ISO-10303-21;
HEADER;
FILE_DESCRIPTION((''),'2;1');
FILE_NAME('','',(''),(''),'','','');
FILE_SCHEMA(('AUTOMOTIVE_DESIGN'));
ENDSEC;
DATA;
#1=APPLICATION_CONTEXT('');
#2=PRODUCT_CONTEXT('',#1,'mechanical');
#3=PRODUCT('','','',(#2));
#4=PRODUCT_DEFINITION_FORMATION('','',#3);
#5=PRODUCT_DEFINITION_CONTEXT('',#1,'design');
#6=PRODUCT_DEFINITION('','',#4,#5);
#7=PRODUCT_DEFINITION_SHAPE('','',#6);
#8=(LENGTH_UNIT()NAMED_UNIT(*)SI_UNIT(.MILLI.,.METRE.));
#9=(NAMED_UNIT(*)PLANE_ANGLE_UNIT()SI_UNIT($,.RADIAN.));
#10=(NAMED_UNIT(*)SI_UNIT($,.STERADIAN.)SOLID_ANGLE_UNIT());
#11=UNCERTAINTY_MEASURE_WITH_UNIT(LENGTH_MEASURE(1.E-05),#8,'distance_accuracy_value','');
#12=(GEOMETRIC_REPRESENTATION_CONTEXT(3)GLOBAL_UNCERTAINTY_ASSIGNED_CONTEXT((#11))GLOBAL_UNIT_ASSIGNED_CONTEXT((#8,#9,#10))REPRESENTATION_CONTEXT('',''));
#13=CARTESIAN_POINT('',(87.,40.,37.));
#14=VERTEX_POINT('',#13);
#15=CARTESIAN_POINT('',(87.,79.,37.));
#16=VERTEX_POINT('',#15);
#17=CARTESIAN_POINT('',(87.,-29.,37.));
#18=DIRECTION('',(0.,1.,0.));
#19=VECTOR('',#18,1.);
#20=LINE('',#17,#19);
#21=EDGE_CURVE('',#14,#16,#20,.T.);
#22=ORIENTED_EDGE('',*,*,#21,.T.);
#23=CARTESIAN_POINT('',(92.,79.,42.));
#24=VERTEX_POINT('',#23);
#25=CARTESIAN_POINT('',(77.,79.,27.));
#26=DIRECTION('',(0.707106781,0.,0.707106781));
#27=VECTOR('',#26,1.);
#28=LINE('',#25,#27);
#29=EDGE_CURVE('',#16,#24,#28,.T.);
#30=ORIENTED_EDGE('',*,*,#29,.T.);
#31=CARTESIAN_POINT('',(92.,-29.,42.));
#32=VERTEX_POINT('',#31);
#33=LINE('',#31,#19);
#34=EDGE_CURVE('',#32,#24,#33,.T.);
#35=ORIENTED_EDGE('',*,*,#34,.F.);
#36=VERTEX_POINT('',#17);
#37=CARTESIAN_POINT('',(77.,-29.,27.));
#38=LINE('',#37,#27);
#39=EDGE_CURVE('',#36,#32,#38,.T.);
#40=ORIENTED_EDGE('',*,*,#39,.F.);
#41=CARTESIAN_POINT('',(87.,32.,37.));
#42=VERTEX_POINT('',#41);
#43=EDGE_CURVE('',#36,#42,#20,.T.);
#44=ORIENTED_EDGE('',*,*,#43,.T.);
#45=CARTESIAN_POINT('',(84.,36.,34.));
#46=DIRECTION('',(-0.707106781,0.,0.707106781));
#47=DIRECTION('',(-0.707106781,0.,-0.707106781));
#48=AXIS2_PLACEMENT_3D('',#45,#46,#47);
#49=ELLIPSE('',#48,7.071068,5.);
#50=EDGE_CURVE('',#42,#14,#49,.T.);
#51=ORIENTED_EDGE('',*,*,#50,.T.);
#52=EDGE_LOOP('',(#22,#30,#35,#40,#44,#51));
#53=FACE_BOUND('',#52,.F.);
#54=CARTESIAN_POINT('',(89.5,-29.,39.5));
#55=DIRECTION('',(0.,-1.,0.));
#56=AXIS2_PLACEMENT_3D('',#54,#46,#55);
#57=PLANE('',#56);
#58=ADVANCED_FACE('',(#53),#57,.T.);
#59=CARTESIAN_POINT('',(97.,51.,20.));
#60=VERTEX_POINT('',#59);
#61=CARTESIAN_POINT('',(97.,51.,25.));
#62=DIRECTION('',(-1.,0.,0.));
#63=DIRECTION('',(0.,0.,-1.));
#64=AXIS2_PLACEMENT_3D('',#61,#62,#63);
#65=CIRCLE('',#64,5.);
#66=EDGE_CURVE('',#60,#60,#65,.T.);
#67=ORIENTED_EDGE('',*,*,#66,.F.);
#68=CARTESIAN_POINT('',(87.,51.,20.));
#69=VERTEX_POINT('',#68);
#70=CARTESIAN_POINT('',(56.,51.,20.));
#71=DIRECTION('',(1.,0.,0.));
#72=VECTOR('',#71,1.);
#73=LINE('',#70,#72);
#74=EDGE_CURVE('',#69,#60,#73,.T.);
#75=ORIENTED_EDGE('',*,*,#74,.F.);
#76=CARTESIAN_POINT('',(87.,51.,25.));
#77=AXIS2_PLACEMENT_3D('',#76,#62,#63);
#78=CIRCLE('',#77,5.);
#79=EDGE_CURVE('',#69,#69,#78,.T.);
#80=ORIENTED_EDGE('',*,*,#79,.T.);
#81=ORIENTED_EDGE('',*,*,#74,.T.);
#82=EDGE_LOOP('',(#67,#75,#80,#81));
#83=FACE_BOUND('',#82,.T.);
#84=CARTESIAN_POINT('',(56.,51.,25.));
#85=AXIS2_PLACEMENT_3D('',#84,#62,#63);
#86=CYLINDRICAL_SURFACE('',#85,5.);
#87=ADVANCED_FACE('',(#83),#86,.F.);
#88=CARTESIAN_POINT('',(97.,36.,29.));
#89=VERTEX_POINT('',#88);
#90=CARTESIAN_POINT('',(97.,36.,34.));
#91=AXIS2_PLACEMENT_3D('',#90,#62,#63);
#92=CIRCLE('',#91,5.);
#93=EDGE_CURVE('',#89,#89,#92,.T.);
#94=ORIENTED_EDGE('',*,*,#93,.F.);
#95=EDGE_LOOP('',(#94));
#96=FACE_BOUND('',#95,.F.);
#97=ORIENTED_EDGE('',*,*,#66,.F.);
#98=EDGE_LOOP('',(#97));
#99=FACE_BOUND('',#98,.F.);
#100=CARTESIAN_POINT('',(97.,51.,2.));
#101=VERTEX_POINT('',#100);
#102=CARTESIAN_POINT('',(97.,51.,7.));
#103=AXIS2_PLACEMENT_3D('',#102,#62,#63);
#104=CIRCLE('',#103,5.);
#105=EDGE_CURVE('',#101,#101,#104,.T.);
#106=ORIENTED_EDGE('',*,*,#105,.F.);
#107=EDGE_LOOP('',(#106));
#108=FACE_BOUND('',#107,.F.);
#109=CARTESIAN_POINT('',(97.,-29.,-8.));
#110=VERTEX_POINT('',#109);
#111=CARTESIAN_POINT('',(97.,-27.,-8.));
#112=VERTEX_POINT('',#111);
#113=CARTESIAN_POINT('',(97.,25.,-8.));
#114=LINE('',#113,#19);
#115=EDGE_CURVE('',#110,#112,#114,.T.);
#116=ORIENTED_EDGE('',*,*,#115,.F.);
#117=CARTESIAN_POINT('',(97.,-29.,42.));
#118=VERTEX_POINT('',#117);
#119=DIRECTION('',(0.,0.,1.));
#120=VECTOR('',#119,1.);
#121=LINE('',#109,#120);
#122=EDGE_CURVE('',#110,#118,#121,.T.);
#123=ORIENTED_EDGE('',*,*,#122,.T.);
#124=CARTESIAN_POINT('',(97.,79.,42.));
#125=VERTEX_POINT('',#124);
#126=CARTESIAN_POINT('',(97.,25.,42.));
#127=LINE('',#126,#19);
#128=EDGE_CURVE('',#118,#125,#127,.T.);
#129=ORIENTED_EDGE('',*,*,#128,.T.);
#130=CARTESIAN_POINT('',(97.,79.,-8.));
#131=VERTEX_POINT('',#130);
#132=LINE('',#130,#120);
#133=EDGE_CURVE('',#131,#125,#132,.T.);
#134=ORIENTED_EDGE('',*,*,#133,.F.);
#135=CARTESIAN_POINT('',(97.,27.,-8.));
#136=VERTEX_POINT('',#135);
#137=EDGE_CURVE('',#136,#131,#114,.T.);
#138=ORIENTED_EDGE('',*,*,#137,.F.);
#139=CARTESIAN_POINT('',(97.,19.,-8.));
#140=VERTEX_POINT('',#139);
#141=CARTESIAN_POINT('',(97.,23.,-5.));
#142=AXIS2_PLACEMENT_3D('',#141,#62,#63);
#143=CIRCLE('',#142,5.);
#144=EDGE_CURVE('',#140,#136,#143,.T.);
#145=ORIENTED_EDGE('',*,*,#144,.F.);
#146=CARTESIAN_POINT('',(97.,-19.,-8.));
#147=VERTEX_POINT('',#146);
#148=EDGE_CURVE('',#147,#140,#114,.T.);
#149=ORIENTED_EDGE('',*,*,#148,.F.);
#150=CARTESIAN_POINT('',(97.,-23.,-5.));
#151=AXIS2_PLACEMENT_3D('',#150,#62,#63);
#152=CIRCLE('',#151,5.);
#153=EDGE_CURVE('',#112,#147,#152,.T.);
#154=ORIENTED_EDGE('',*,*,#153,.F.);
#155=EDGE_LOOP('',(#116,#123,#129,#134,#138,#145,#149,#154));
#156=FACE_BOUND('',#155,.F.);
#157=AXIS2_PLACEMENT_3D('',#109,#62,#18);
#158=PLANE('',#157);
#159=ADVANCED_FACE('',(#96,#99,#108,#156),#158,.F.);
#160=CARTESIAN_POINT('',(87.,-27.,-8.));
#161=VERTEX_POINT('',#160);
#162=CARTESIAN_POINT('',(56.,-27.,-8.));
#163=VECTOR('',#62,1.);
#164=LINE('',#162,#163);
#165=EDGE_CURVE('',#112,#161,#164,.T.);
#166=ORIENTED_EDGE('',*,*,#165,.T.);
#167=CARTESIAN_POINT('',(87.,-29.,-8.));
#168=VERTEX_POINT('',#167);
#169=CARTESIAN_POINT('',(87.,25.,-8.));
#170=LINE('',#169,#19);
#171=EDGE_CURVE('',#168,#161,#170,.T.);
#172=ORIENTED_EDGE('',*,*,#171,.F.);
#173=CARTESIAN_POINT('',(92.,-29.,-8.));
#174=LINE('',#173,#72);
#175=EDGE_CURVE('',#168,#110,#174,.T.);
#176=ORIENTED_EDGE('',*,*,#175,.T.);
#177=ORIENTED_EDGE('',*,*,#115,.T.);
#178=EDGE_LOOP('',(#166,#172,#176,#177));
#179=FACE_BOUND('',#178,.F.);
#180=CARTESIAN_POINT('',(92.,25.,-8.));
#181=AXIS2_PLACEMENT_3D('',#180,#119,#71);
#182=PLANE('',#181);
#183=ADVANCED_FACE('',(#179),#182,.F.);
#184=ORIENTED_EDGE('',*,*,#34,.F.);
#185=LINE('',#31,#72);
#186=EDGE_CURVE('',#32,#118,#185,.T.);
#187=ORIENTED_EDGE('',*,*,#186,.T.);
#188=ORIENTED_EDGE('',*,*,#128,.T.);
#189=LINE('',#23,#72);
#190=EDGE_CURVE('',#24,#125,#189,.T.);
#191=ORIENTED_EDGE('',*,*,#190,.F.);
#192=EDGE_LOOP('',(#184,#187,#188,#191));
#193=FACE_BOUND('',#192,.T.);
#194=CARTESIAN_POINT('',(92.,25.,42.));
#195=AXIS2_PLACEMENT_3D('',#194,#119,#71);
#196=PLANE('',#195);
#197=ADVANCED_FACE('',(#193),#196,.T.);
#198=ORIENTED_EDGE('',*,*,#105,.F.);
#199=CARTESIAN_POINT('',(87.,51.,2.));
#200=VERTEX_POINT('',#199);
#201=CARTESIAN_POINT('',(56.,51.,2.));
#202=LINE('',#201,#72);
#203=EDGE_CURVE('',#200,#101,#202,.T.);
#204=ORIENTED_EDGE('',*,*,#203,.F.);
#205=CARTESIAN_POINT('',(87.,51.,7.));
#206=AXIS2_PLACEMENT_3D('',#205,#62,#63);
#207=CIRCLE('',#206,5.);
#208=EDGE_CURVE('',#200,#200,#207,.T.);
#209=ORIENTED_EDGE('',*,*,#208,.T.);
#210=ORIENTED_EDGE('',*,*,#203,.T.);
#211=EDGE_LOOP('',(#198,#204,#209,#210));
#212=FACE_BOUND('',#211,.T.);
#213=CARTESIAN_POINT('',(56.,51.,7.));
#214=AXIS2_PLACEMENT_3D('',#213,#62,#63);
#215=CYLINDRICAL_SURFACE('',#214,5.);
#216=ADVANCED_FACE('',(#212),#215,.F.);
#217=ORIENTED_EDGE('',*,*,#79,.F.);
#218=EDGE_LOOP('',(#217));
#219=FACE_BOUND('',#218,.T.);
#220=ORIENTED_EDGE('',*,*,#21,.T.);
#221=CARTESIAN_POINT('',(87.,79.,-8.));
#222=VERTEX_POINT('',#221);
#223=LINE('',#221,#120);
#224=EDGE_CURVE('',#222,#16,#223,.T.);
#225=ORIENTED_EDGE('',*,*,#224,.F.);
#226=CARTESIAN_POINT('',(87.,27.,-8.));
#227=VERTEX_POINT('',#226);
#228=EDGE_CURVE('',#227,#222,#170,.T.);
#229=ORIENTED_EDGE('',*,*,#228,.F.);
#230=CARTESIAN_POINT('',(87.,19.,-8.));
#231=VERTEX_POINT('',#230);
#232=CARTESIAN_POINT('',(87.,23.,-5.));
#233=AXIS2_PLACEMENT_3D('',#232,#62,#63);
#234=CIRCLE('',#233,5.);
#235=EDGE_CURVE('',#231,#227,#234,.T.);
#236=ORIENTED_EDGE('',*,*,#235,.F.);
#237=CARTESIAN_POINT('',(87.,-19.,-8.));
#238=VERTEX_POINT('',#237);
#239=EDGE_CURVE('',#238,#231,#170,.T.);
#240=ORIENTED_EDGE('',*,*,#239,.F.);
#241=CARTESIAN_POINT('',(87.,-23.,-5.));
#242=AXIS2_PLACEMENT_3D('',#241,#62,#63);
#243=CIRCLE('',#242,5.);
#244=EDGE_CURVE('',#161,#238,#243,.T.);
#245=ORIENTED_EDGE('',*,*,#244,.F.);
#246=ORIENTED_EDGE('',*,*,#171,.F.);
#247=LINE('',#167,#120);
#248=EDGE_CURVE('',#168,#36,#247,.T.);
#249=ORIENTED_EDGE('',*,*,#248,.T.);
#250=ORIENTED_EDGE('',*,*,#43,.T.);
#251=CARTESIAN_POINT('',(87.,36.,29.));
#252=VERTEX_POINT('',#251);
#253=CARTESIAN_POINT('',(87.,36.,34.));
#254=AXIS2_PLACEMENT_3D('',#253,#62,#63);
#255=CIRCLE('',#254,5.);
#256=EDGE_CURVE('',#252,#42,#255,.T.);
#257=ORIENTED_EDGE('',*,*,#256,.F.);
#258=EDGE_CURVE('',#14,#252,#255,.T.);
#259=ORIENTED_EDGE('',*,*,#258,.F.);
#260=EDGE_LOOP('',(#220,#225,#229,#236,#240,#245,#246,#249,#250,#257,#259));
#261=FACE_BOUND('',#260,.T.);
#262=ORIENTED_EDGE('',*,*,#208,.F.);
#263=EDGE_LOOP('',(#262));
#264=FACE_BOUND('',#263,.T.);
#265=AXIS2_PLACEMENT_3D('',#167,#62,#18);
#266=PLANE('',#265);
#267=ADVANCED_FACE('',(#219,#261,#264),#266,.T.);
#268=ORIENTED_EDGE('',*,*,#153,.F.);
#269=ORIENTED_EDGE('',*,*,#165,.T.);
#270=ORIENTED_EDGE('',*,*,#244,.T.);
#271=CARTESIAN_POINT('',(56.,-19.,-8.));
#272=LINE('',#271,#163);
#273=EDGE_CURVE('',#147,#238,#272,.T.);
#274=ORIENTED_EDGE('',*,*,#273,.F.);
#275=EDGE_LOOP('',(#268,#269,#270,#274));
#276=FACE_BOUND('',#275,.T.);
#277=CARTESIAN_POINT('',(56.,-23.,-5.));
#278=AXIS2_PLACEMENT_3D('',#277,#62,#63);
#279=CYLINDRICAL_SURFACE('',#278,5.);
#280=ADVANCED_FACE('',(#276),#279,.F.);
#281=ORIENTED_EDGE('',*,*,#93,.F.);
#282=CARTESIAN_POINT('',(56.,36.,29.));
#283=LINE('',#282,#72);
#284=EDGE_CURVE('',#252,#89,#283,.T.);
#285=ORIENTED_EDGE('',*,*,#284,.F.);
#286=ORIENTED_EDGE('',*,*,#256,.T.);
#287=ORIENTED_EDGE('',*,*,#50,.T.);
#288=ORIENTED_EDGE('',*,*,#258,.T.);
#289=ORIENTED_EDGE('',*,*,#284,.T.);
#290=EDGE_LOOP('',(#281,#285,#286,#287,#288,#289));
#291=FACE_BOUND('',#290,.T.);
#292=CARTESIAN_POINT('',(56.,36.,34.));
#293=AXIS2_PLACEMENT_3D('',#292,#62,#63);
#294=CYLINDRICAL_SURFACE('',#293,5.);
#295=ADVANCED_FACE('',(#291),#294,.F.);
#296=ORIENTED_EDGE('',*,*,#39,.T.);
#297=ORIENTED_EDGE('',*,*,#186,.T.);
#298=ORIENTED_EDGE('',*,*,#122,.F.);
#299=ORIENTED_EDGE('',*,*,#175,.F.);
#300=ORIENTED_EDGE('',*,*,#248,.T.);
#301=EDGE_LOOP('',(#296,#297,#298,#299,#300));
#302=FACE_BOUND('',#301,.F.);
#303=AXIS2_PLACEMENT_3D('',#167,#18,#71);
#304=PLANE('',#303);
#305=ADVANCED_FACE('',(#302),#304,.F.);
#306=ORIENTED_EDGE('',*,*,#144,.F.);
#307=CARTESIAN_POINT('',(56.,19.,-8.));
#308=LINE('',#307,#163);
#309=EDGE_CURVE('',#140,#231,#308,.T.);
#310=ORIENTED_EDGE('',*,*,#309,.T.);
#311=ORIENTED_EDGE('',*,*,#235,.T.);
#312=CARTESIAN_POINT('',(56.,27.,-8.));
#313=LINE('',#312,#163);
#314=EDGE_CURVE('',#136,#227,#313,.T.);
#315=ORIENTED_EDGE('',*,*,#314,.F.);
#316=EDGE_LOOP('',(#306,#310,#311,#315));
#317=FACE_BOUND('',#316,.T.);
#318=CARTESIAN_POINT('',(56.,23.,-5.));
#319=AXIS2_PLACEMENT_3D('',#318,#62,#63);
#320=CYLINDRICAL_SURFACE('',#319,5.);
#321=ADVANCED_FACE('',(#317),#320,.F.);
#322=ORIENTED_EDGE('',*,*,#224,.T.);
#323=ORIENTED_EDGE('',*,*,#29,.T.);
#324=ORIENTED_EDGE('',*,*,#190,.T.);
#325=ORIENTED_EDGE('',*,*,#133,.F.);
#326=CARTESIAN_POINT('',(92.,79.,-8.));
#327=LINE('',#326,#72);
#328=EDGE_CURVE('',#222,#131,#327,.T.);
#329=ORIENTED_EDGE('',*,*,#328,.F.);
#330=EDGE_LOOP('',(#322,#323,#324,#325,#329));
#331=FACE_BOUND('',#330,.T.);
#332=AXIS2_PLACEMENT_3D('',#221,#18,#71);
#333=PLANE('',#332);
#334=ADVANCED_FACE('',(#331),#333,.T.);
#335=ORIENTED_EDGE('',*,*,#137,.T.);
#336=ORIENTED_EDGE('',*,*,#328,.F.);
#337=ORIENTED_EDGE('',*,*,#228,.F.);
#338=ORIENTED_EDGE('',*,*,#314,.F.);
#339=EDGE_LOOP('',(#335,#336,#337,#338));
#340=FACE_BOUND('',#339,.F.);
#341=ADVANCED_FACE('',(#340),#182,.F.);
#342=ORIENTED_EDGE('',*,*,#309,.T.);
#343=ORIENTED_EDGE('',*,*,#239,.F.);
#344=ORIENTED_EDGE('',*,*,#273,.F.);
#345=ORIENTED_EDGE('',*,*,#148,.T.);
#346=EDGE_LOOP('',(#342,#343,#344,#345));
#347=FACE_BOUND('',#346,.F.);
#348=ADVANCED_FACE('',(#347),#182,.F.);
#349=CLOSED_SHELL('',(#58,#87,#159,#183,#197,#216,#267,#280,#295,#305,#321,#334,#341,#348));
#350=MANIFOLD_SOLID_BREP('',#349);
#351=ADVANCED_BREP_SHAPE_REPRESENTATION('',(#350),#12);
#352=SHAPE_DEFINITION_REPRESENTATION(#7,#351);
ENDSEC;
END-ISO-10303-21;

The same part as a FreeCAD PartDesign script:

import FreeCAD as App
import Part
import Sketcher

V = App.Vector


def edges_at(feature, points):
    """Names of the edges that pass closest to the given points."""
    edges = feature.Shape.Edges
    near = lambda p: min(range(len(edges)), key=lambda i: edges[i].distToShape(Part.Vertex(*p))[0])
    return sorted({f"Edge{near(p) + 1}" for p in points})


def add_polygon(sketch, points):
    """Adds a closed chain of lines whose ends are joined by coincident constraints."""
    first, n = sketch.GeometryCount, len(points)
    for a, b in zip(points, points[1:] + points[:1]):
        sketch.addGeometry(Part.LineSegment(App.Vector(*a, 0), App.Vector(*b, 0)), False)
    for i in range(n):
        sketch.addConstraint(Sketcher.Constraint("Coincident", first + i, 2, first + (i + 1) % n, 1))

doc = App.newDocument("Part")
body = doc.addObject("PartDesign::Body", "Body")

sketch1 = doc.addObject("Sketcher::SketchObject", "Sketch")
body.addObject(sketch1)
sketch1.AttachmentSupport = (doc.YZ_Plane, [""])
sketch1.MapMode = "FlatFace"
sketch1.AttachmentOffset = App.Placement(V(0, 0, 24), App.Rotation())
sketch1.addGeometry(Part.Circle(V(-51, 25, 0), V(0, 0, 1), 5), False)
sketch1.addConstraint([
    Sketcher.Constraint("Diameter", 0, 10.0),
    Sketcher.Constraint("DistanceX", 0, 3, -1, 1, 51.0),
    Sketcher.Constraint("DistanceY", -1, 1, 0, 3, 25.0),
])
pad1 = doc.addObject("PartDesign::Pad", "Pad")
body.addObject(pad1)
pad1.Profile = sketch1
pad1.Length = 100
body2 = doc.addObject("PartDesign::Body", "Body001")

sketch2 = doc.addObject("Sketcher::SketchObject", "Sketch001")
body2.addObject(sketch2)
sketch2.AttachmentSupport = (doc.getObject("YZ_Plane001"), [""])
sketch2.MapMode = "FlatFace"
sketch2.AttachmentOffset = App.Placement(V(0, 0, 24), App.Rotation())
sketch2.addGeometry(Part.Circle(V(36, 34, 0), V(0, 0, 1), 5), False)
sketch2.addConstraint([
    Sketcher.Constraint("Diameter", 0, 10.0),
    Sketcher.Constraint("DistanceX", -1, 1, 0, 3, 36.0),
    Sketcher.Constraint("DistanceY", -1, 1, 0, 3, 34.0),
])
pad2 = doc.addObject("PartDesign::Pad", "Pad001")
body2.addObject(pad2)
pad2.Profile = sketch2
pad2.Length = 100
body3 = doc.addObject("PartDesign::Body", "Body002")

sketch3 = doc.addObject("Sketcher::SketchObject", "Sketch002")
body3.addObject(sketch3)
sketch3.AttachmentSupport = (doc.getObject("YZ_Plane002"), [""])
sketch3.MapMode = "FlatFace"
sketch3.AttachmentOffset = App.Placement(V(0, 0, 24), App.Rotation())
sketch3.addGeometry(Part.Circle(V(-36, 34, 0), V(0, 0, 1), 5), False)
sketch3.addConstraint([
    Sketcher.Constraint("Diameter", 0, 10.0),
    Sketcher.Constraint("DistanceX", 0, 3, -1, 1, 36.0),
    Sketcher.Constraint("DistanceY", -1, 1, 0, 3, 34.0),
])
pad3 = doc.addObject("PartDesign::Pad", "Pad002")
body3.addObject(pad3)
pad3.Profile = sketch3
pad3.Length = 100
body4 = doc.addObject("PartDesign::Body", "Body003")

sketch4 = doc.addObject("Sketcher::SketchObject", "Sketch003")
body4.addObject(sketch4)
sketch4.AttachmentSupport = (doc.getObject("YZ_Plane003"), [""])
sketch4.MapMode = "FlatFace"
sketch4.AttachmentOffset = App.Placement(V(0, 0, 24), App.Rotation())
sketch4.addGeometry(Part.Circle(V(-23, -5, 0), V(0, 0, 1), 5), False)
sketch4.addConstraint([
    Sketcher.Constraint("Diameter", 0, 10.0),
    Sketcher.Constraint("DistanceX", 0, 3, -1, 1, 23.0),
    Sketcher.Constraint("DistanceY", 0, 3, -1, 1, 5.0),
])
pad4 = doc.addObject("PartDesign::Pad", "Pad003")
body4.addObject(pad4)
pad4.Profile = sketch4
pad4.Length = 100
body5 = doc.addObject("PartDesign::Body", "Body004")

sketch5 = doc.addObject("Sketcher::SketchObject", "Sketch004")
body5.addObject(sketch5)
sketch5.AttachmentSupport = (doc.getObject("YZ_Plane004"), [""])
sketch5.MapMode = "FlatFace"
sketch5.AttachmentOffset = App.Placement(V(0, 0, 24), App.Rotation())
sketch5.addGeometry(Part.Circle(V(51, 7, 0), V(0, 0, 1), 5), False)
sketch5.addConstraint([
    Sketcher.Constraint("Diameter", 0, 10.0),
    Sketcher.Constraint("DistanceX", -1, 1, 0, 3, 51.0),
    Sketcher.Constraint("DistanceY", -1, 1, 0, 3, 7.0),
])
pad5 = doc.addObject("PartDesign::Pad", "Pad004")
body5.addObject(pad5)
pad5.Profile = sketch5
pad5.Length = 100
body6 = doc.addObject("PartDesign::Body", "Body005")

sketch6 = doc.addObject("Sketcher::SketchObject", "Sketch005")
body6.addObject(sketch6)
sketch6.AttachmentSupport = (doc.getObject("YZ_Plane005"), [""])
sketch6.MapMode = "FlatFace"
sketch6.AttachmentOffset = App.Placement(V(0, 0, 24), App.Rotation())
sketch6.addGeometry(Part.Circle(V(23, -5, 0), V(0, 0, 1), 5), False)
sketch6.addConstraint([
    Sketcher.Constraint("Diameter", 0, 10.0),
    Sketcher.Constraint("DistanceX", -1, 1, 0, 3, 23.0),
    Sketcher.Constraint("DistanceY", 0, 3, -1, 1, 5.0),
])
pad6 = doc.addObject("PartDesign::Pad", "Pad005")
body6.addObject(pad6)
pad6.Profile = sketch6
pad6.Length = 100
body7 = doc.addObject("PartDesign::Body", "Body006")

sketch7 = doc.addObject("Sketcher::SketchObject", "Sketch006")
body7.addObject(sketch7)
sketch7.AttachmentSupport = (doc.getObject("YZ_Plane006"), [""])
sketch7.MapMode = "FlatFace"
sketch7.AttachmentOffset = App.Placement(V(0, 0, 24), App.Rotation())
sketch7.addGeometry(Part.Circle(V(-51, 7, 0), V(0, 0, 1), 5), False)
sketch7.addConstraint([
    Sketcher.Constraint("Diameter", 0, 10.0),
    Sketcher.Constraint("DistanceX", 0, 3, -1, 1, 51.0),
    Sketcher.Constraint("DistanceY", -1, 1, 0, 3, 7.0),
])
pad7 = doc.addObject("PartDesign::Pad", "Pad006")
body7.addObject(pad7)
pad7.Profile = sketch7
pad7.Length = 100
body8 = doc.addObject("PartDesign::Body", "Body007")
body8.AllowCompound = True

sketch8 = doc.addObject("Sketcher::SketchObject", "Sketch007")
body8.addObject(sketch8)
sketch8.AttachmentSupport = (doc.getObject("YZ_Plane007"), [""])
sketch8.MapMode = "FlatFace"
sketch8.AttachmentOffset = App.Placement(V(0, 0, 24), App.Rotation())
sketch8.addGeometry(Part.Circle(V(51, 25, 0), V(0, 0, 1), 5), False)
sketch8.addConstraint([
    Sketcher.Constraint("Diameter", 0, 10.0),
    Sketcher.Constraint("DistanceX", -1, 1, 0, 3, 51.0),
    Sketcher.Constraint("DistanceY", -1, 1, 0, 3, 25.0),
])
pad8 = doc.addObject("PartDesign::Pad", "Pad007")
body8.addObject(pad8)
pad8.Profile = sketch8
pad8.Length = 100
doc.recompute()

boolean = doc.addObject("PartDesign::Boolean", "Boolean")
body8.addObject(boolean)
boolean.Type = "Fuse"
boolean.addObjects([body])
doc.recompute()

boolean2 = doc.addObject("PartDesign::Boolean", "Boolean001")
body8.addObject(boolean2)
boolean2.Type = "Fuse"
boolean2.addObjects([body2])
doc.recompute()

boolean3 = doc.addObject("PartDesign::Boolean", "Boolean002")
body8.addObject(boolean3)
boolean3.Type = "Fuse"
boolean3.addObjects([body3])
doc.recompute()

boolean4 = doc.addObject("PartDesign::Boolean", "Boolean003")
body8.addObject(boolean4)
boolean4.Type = "Fuse"
boolean4.addObjects([body4])
doc.recompute()

boolean5 = doc.addObject("PartDesign::Boolean", "Boolean004")
body8.addObject(boolean5)
boolean5.Type = "Fuse"
boolean5.addObjects([body5])
doc.recompute()

boolean6 = doc.addObject("PartDesign::Boolean", "Boolean005")
body8.addObject(boolean6)
boolean6.Type = "Fuse"
boolean6.addObjects([body6])
doc.recompute()

boolean7 = doc.addObject("PartDesign::Boolean", "Boolean006")
body8.addObject(boolean7)
boolean7.Type = "Fuse"
boolean7.addObjects([body7])
body9 = doc.addObject("PartDesign::Body", "Body008")
body9.AllowCompound = True
doc.recompute()

body8.Placement = App.Placement(V(32, 0, 0), App.Rotation(V(0, 0, 1), 0))
boolean8 = doc.addObject("PartDesign::Boolean", "Boolean007")
body9.addObject(boolean8)
boolean8.Type = "Fuse"
boolean8.addObjects([body8])
body10 = doc.addObject("PartDesign::Body", "Body009")

sketch9 = doc.addObject("Sketcher::SketchObject", "Sketch008")
body10.addObject(sketch9)
sketch9.AttachmentSupport = (doc.getObject("XY_Plane009"), [""])
sketch9.MapMode = "FlatFace"
sketch9.AttachmentOffset = App.Placement(V(0, 0, -8), App.Rotation())
add_polygon(sketch9, [(87, 79), (87, -29), (97, -29), (97, 79)])
sketch9.addConstraint([
    Sketcher.Constraint("Vertical", 0),
    Sketcher.Constraint("Horizontal", 1),
    Sketcher.Constraint("Vertical", 2),
    Sketcher.Constraint("Horizontal", 3),
    Sketcher.Constraint("DistanceX", 1, 1, 1, 2, 10.0),
    Sketcher.Constraint("DistanceY", 0, 2, 0, 1, 108.0),
    Sketcher.Constraint("DistanceX", -1, 1, 0, 2, 87.0),
    Sketcher.Constraint("DistanceY", 0, 2, -1, 1, 29.0),
])
pad9 = doc.addObject("PartDesign::Pad", "Pad008")
body10.addObject(pad9)
pad9.Profile = sketch9
pad9.Length = 50
doc.recompute()

chamfer = doc.addObject("PartDesign::Chamfer", "Chamfer")
body10.addObject(chamfer)
chamfer.Base = (pad9, edges_at(pad9, [(87, 25, 42)]))
chamfer.Size = 5
doc.recompute()

boolean9 = doc.addObject("PartDesign::Boolean", "Boolean008")
body10.addObject(boolean9)
boolean9.Type = "Cut"
boolean9.addObjects([body9])

doc.recompute()
